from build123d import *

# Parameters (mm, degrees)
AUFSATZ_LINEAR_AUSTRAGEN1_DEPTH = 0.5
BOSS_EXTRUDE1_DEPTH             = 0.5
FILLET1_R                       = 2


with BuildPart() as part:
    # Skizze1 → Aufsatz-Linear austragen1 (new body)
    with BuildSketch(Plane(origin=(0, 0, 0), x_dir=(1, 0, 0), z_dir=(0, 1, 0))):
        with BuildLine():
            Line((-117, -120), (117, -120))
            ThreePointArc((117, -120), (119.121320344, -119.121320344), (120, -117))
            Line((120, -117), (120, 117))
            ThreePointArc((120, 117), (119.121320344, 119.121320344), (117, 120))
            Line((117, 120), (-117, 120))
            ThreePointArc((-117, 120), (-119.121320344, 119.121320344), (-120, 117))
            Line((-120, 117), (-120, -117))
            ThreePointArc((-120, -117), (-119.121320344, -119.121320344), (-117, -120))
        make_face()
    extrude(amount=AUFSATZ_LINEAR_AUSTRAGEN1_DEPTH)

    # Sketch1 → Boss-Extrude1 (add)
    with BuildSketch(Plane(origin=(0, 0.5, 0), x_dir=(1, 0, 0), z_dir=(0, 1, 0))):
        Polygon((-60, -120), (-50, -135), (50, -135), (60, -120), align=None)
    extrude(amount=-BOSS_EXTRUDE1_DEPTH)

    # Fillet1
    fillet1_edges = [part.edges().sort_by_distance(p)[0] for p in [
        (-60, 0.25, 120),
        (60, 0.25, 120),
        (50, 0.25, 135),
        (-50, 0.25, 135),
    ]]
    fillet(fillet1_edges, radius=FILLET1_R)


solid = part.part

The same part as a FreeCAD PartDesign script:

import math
import FreeCAD as App
import Part
import Sketcher

V = App.Vector
Q = App.Units.Quantity


def edges_at(feature, points):
    """Names of the edges that pass closest to the given points."""
    edges = feature.Shape.Edges
    near = lambda p: min(range(len(edges)), key=lambda i: edges[i].distToShape(Part.Vertex(*p))[0])
    return sorted({f"Edge{near(p) + 1}" for p in points})


def add_polygon(sketch, points):
    """Adds a closed chain of lines whose ends are joined by coincident constraints."""
    first, n = sketch.GeometryCount, len(points)
    for a, b in zip(points, points[1:] + points[:1]):
        sketch.addGeometry(Part.LineSegment(App.Vector(*a, 0), App.Vector(*b, 0)), False)
    for i in range(n):
        sketch.addConstraint(Sketcher.Constraint("Coincident", first + i, 2, first + (i + 1) % n, 1))

doc = App.newDocument("Part")
body = doc.addObject("PartDesign::Body", "Body")

# Sketch on XZ plane
sketch1 = body.newObject("Sketcher::SketchObject", "Sketch")
sketch1.AttachmentSupport = (doc.getObject("XZ_Plane"), [""])
sketch1.MapMode = "FlatFace"
sketch1.addGeometry([
    Part.LineSegment(V(-117, 120, 0), V(117, 120, 0)),  # 0
    Part.ArcOfCircle(Part.Circle(V(117, 117, 0), V(0, 0, 1), 3), math.radians(0), math.radians(90)),  # 1
    Part.LineSegment(V(120, 117, 0), V(120, -117, 0)),  # 2
    Part.ArcOfCircle(Part.Circle(V(117, -117, 0), V(0, 0, 1), 3), math.radians(-90), math.radians(0)),  # 3
    Part.LineSegment(V(117, -120, 0), V(-117, -120, 0)),  # 4
    Part.ArcOfCircle(Part.Circle(V(-117, -117, 0), V(0, 0, 1), 3), math.radians(180), math.radians(270)),  # 5
    Part.LineSegment(V(-120, -117, 0), V(-120, 117, 0)),  # 6
    Part.ArcOfCircle(Part.Circle(V(-117, 117, 0), V(0, 0, 1), 3), math.radians(90), math.radians(180)),  # 7
], False)
sketch1.addConstraint([
    Sketcher.Constraint("Tangent", 0, 2, 1, 2),
    Sketcher.Constraint("Tangent", 1, 1, 2, 1),
    Sketcher.Constraint("Tangent", 2, 2, 3, 2),
    Sketcher.Constraint("Tangent", 3, 1, 4, 1),
    Sketcher.Constraint("Tangent", 4, 2, 5, 2),
    Sketcher.Constraint("Tangent", 5, 1, 6, 1),
    Sketcher.Constraint("Tangent", 6, 2, 7, 2),
    Sketcher.Constraint("Tangent", 7, 1, 0, 1),
    Sketcher.Constraint("Horizontal", 0),
    Sketcher.Constraint("Vertical", 2),
    Sketcher.Constraint("Horizontal", 4),
    Sketcher.Constraint("Vertical", 6),
    Sketcher.Constraint("Equal", 1, 3),
    Sketcher.Constraint("Equal", 3, 5),
    Sketcher.Constraint("Equal", 5, 7),
    Sketcher.Constraint("Symmetric", 1, 3, 5, 3, -1, 1),
    Sketcher.Constraint("Equal", 4, 2),
    Sketcher.Constraint("Radius", 1, Q("3 mm")),
    Sketcher.Constraint("DistanceX", 0, 1, 0, 2, Q("234 mm")),
])
pad1 = body.newObject("PartDesign::Pad", "Pad")
pad1.Profile = sketch1
pad1.Length = 0.5
pad1.Reversed = True

# Sketch on XZ plane
sketch2 = body.newObject("Sketcher::SketchObject", "Sketch001")
sketch2.AttachmentSupport = (doc.getObject("XZ_Plane"), [""])
sketch2.MapMode = "FlatFace"
sketch2.AttachmentOffset = App.Placement(V(0, 0, -0.5), App.Rotation())
add_polygon(sketch2, [(-60, 120), (-50, 135), (50, 135), (60, 120)])  # lines 0-3
sketch2.addConstraint([
    Sketcher.Constraint("Horizontal", 1),
    Sketcher.Constraint("Horizontal", 3),
    Sketcher.Constraint("Equal", 0, 2),
    Sketcher.Constraint("DistanceX", 1, 1, 1, 2, Q("100 mm")),
    Sketcher.Constraint("DistanceX", 3, 2, 3, 1, Q("120 mm")),
    Sketcher.Constraint("DistanceX", 0, 2, -1, 1, Q("50 mm")),
    Sketcher.Constraint("DistanceY", -1, 1, 0, 2, Q("135 mm")),
    Sketcher.Constraint("DistanceY", -1, 1, 2, 2, Q("120 mm")),
])
pad2 = body.newObject("PartDesign::Pad", "Pad001")
pad2.Profile = sketch2
pad2.Length = 0.5
doc.recompute()

fillet = body.newObject("PartDesign::Fillet", "Fillet")
fillet.Base = (pad2, edges_at(pad2, [
    (-60, 0.25, 120),
    (60, 0.25, 120),
    (50, 0.25, 135),
    (-50, 0.25, 135),
]))
fillet.Radius = 2

doc.recompute()
